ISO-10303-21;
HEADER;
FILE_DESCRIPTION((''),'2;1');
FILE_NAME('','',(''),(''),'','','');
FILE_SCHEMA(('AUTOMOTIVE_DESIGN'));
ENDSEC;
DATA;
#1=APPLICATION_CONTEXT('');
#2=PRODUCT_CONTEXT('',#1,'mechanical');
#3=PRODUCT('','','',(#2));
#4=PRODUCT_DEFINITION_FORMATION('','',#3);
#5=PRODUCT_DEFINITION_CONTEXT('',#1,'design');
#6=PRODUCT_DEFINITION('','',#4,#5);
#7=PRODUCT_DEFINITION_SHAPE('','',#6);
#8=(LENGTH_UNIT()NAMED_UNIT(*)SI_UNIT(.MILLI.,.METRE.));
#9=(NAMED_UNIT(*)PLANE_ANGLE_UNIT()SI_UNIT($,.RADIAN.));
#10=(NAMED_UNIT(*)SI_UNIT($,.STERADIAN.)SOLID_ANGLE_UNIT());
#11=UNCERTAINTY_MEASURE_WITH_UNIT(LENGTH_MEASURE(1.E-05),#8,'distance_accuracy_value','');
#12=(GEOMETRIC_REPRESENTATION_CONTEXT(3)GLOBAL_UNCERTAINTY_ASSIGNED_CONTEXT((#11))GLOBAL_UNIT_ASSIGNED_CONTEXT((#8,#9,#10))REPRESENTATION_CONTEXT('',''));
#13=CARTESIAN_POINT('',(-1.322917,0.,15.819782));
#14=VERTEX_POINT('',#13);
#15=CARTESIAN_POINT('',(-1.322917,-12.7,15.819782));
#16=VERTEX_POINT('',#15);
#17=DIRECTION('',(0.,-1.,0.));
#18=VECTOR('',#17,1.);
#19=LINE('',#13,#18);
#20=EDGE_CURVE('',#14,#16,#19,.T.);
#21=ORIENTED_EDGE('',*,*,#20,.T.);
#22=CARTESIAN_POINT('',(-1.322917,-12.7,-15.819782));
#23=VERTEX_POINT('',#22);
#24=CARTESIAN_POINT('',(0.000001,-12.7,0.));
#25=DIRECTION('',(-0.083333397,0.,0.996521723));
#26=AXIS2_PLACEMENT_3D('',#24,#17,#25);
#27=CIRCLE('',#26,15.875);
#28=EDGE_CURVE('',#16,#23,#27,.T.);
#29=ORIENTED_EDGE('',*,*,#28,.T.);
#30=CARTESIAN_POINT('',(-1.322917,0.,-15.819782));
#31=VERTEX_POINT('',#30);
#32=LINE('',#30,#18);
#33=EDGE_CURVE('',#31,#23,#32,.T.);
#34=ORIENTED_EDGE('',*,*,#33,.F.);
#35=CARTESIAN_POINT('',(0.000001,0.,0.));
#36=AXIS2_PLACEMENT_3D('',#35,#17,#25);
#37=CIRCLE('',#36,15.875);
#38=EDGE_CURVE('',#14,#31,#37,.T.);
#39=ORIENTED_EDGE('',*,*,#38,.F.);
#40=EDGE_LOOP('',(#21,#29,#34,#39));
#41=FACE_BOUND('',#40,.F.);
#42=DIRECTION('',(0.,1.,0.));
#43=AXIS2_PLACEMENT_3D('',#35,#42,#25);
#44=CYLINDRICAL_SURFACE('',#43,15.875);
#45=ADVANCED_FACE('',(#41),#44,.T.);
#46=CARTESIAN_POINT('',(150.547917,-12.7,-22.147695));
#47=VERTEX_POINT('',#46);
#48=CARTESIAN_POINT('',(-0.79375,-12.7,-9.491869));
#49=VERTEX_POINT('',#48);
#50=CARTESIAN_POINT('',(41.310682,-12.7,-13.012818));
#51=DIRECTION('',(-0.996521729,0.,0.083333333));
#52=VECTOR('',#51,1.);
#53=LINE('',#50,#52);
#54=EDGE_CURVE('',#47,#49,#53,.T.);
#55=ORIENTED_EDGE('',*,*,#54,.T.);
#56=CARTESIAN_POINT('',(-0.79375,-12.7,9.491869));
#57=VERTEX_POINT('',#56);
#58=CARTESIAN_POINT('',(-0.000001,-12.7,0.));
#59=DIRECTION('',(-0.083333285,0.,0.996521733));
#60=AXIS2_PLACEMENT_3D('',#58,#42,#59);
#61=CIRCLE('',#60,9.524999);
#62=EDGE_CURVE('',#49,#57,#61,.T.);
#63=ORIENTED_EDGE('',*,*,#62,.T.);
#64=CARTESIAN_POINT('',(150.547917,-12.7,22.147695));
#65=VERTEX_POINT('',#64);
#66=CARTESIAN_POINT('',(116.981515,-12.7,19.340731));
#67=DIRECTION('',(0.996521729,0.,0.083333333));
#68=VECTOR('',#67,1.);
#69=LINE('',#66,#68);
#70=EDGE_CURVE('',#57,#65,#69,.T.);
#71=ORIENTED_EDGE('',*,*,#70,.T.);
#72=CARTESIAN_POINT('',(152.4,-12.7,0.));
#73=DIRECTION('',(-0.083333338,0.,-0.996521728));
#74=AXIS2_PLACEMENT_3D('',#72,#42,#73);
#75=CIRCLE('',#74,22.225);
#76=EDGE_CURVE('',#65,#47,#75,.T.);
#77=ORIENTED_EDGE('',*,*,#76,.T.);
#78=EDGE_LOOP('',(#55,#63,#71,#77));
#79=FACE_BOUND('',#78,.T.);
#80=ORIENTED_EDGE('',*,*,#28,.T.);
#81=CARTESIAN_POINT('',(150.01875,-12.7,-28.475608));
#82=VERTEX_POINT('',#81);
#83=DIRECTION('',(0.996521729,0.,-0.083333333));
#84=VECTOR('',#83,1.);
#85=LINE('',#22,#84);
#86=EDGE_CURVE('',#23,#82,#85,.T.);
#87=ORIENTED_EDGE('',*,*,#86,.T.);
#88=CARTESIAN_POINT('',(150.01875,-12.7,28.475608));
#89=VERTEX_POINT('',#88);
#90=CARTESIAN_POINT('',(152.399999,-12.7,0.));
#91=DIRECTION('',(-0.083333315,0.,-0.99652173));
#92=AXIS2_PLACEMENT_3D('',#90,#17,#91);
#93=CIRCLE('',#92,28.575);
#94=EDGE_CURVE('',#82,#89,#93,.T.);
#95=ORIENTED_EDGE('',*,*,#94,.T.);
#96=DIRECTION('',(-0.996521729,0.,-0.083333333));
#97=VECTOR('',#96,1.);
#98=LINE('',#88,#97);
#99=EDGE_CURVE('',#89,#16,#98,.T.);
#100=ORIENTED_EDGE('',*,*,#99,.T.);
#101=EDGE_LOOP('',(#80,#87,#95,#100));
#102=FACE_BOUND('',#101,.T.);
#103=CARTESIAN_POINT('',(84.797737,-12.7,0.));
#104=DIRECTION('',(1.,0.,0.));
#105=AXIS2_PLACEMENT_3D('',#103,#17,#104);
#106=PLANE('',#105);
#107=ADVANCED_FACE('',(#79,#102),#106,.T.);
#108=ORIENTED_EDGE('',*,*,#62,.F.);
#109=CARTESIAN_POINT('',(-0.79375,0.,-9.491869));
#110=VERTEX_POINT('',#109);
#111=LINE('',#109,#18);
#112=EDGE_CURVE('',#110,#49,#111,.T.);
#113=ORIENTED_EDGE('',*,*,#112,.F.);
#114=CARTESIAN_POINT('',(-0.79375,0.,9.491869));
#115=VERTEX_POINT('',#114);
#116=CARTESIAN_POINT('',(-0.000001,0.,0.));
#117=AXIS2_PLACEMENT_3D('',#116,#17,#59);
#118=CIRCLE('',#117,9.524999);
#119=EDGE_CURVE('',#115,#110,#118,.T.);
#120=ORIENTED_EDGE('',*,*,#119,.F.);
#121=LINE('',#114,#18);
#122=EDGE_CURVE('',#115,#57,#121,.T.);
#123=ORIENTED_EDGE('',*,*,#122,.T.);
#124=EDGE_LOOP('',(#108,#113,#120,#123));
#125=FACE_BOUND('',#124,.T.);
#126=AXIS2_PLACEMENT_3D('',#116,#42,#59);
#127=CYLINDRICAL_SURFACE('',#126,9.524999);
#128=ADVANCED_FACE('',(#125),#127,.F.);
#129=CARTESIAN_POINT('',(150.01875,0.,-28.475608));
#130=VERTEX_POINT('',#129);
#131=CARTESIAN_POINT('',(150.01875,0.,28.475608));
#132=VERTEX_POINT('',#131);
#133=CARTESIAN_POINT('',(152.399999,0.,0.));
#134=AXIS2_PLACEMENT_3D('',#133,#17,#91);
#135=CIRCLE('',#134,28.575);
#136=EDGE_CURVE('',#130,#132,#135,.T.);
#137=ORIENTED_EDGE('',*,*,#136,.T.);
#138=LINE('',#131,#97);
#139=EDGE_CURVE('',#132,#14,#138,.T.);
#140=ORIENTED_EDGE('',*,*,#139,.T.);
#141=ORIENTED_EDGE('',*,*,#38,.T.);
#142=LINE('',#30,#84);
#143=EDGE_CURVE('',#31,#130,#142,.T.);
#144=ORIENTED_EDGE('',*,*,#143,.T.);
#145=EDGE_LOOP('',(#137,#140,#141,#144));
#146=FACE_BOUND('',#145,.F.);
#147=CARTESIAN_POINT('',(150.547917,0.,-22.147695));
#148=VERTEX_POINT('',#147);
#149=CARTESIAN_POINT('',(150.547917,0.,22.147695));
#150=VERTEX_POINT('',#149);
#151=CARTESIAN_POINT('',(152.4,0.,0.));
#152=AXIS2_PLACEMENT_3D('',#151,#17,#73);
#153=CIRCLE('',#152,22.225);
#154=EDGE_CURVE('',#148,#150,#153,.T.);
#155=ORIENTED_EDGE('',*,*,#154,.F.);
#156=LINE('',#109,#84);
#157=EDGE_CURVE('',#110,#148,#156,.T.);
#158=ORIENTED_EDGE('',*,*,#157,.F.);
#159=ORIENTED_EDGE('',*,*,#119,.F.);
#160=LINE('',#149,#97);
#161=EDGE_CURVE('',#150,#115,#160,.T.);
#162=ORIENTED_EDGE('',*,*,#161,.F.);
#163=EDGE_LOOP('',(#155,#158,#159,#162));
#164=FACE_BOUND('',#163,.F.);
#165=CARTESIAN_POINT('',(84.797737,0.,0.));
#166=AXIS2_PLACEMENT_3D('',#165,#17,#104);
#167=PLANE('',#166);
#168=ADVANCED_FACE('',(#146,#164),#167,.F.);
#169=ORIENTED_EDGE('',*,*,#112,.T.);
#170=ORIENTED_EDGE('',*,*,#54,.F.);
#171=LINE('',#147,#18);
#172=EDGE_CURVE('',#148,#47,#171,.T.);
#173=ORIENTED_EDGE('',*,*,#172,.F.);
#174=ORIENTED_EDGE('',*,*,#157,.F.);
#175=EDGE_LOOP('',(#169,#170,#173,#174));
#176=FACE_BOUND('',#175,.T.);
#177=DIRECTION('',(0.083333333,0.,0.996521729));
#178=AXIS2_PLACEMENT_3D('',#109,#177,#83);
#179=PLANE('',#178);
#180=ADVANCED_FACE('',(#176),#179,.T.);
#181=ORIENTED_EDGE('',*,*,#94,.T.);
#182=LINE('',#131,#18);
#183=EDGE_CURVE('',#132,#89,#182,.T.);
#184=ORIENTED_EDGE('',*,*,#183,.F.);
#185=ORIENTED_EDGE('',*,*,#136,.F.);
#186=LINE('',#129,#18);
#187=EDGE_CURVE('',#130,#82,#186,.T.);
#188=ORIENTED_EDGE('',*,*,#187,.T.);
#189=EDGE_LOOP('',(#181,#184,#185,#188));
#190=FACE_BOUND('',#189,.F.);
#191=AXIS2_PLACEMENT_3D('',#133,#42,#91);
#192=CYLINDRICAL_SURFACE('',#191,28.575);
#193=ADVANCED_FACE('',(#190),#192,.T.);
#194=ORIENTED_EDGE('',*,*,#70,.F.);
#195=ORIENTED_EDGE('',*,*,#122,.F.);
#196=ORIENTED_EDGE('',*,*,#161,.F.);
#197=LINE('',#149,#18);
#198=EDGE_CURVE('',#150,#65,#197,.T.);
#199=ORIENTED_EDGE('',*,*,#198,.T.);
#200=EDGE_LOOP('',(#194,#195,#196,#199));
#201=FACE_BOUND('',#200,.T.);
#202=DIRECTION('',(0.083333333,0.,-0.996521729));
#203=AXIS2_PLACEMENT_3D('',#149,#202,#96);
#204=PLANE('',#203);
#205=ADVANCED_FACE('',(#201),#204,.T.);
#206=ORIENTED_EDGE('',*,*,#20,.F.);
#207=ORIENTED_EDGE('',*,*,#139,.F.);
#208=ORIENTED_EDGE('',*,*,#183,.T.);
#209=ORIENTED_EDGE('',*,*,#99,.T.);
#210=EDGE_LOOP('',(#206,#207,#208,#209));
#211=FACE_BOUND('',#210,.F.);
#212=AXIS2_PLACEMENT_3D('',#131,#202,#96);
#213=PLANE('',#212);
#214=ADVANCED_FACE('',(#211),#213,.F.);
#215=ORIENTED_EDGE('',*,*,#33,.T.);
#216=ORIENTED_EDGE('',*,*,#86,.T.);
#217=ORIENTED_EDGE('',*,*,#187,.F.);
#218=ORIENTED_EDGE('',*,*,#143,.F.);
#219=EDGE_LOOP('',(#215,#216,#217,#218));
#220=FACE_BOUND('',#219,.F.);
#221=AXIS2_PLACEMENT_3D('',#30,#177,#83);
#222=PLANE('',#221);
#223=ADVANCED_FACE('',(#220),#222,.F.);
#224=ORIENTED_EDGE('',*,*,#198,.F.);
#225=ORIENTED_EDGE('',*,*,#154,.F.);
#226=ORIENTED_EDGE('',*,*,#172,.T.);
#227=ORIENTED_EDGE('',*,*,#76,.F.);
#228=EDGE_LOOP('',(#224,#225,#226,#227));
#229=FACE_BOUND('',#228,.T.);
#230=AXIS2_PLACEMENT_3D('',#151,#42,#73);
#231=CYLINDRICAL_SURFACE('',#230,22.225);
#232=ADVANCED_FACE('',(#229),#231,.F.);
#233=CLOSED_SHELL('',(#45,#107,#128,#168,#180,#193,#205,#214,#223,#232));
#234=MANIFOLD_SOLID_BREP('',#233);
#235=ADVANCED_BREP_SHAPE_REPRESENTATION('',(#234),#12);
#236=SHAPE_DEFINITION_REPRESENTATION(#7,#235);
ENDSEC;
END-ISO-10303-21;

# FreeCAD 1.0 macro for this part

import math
import FreeCAD as App
import Part
import Sketcher
from FreeCAD import Vector
Q = App.Units.Quantity

doc = App.newDocument("Part")
body = doc.addObject("PartDesign::Body", "Body")

# Sketch on XZ plane
sketch1 = body.newObject("Sketcher::SketchObject", "Sketch")
sketch1.AttachmentSupport = (doc.getObject("XZ_Plane"), [""])
sketch1.MapMode = "FlatFace"
sketch1.addGeometry([
    Part.LineSegment(Vector(150, 28, 0), Vector(-1, 16, 0)),
    Part.ArcOfCircle(Part.Circle(Vector(0, 0, 0), Vector(0, 0, 1), 16), math.radians(95), math.radians(265)),
    Part.LineSegment(Vector(-1, -16, 0), Vector(150, -28, 0)),
    Part.ArcOfCircle(Part.Circle(Vector(152, 0, 0), Vector(0, 0, 1), 29), math.radians(-95), math.radians(95)),
], False)
sketch1.addConstraint([
    Sketcher.Constraint("Tangent", 0, 2, 1, 1),
    Sketcher.Constraint("Tangent", 1, 2, 2, 1),
    Sketcher.Constraint("Tangent", 2, 2, 3, 1),
    Sketcher.Constraint("Tangent", 3, 2, 0, 1),
    Sketcher.Constraint("Coincident", 1, 3, -1, 1),
    Sketcher.Constraint("PointOnObject", 3, 3, -1),
    Sketcher.Constraint("DistanceX", -1, 1, 3, 3, Q("6 in")),
    Sketcher.Constraint("Radius", 1, Q("0.625 in")),
    Sketcher.Constraint("Radius", 3, Q("1.125 in")),
])
pad1 = body.newObject("PartDesign::Pad", "Pad")
pad1.Profile = sketch1
pad1.Length = Q("0.5 in")

# Sketch on XZ plane
sketch2 = body.newObject("Sketcher::SketchObject", "Sketch001")
sketch2.AttachmentSupport = (doc.getObject("XZ_Plane"), [""])
sketch2.MapMode = "FlatFace"
sketch2.addGeometry([
    Part.LineSegment(Vector(151, 22, 0), Vector(-1, 9, 0)),
    Part.ArcOfCircle(Part.Circle(Vector(0, 0, 0), Vector(0, 0, 1), 10), math.radians(95), math.radians(265)),
    Part.LineSegment(Vector(-1, -9, 0), Vector(151, -22, 0)),
    Part.ArcOfCircle(Part.Circle(Vector(152, 0, 0), Vector(0, 0, 1), 22), math.radians(-95), math.radians(95)),
], False)
sketch2.addConstraint([
    Sketcher.Constraint("Tangent", 0, 2, 1, 1),
    Sketcher.Constraint("Tangent", 1, 2, 2, 1),
    Sketcher.Constraint("Tangent", 2, 2, 3, 1),
    Sketcher.Constraint("Tangent", 3, 2, 0, 1),
    Sketcher.Constraint("Coincident", 1, 3, -1, 1),
    Sketcher.Constraint("PointOnObject", 3, 3, -1),
    Sketcher.Constraint("DistanceX", -1, 1, 3, 3, Q("6 in")),
    Sketcher.Constraint("Radius", 1, Q("0.375 in")),
    Sketcher.Constraint("Radius", 3, Q("0.875 in")),
])
pocket1 = body.newObject("PartDesign::Pocket", "Pocket")
pocket1.Profile = sketch2
pocket1.Length = Q("1 in")
pocket1.Reversed = True

doc.recompute()
